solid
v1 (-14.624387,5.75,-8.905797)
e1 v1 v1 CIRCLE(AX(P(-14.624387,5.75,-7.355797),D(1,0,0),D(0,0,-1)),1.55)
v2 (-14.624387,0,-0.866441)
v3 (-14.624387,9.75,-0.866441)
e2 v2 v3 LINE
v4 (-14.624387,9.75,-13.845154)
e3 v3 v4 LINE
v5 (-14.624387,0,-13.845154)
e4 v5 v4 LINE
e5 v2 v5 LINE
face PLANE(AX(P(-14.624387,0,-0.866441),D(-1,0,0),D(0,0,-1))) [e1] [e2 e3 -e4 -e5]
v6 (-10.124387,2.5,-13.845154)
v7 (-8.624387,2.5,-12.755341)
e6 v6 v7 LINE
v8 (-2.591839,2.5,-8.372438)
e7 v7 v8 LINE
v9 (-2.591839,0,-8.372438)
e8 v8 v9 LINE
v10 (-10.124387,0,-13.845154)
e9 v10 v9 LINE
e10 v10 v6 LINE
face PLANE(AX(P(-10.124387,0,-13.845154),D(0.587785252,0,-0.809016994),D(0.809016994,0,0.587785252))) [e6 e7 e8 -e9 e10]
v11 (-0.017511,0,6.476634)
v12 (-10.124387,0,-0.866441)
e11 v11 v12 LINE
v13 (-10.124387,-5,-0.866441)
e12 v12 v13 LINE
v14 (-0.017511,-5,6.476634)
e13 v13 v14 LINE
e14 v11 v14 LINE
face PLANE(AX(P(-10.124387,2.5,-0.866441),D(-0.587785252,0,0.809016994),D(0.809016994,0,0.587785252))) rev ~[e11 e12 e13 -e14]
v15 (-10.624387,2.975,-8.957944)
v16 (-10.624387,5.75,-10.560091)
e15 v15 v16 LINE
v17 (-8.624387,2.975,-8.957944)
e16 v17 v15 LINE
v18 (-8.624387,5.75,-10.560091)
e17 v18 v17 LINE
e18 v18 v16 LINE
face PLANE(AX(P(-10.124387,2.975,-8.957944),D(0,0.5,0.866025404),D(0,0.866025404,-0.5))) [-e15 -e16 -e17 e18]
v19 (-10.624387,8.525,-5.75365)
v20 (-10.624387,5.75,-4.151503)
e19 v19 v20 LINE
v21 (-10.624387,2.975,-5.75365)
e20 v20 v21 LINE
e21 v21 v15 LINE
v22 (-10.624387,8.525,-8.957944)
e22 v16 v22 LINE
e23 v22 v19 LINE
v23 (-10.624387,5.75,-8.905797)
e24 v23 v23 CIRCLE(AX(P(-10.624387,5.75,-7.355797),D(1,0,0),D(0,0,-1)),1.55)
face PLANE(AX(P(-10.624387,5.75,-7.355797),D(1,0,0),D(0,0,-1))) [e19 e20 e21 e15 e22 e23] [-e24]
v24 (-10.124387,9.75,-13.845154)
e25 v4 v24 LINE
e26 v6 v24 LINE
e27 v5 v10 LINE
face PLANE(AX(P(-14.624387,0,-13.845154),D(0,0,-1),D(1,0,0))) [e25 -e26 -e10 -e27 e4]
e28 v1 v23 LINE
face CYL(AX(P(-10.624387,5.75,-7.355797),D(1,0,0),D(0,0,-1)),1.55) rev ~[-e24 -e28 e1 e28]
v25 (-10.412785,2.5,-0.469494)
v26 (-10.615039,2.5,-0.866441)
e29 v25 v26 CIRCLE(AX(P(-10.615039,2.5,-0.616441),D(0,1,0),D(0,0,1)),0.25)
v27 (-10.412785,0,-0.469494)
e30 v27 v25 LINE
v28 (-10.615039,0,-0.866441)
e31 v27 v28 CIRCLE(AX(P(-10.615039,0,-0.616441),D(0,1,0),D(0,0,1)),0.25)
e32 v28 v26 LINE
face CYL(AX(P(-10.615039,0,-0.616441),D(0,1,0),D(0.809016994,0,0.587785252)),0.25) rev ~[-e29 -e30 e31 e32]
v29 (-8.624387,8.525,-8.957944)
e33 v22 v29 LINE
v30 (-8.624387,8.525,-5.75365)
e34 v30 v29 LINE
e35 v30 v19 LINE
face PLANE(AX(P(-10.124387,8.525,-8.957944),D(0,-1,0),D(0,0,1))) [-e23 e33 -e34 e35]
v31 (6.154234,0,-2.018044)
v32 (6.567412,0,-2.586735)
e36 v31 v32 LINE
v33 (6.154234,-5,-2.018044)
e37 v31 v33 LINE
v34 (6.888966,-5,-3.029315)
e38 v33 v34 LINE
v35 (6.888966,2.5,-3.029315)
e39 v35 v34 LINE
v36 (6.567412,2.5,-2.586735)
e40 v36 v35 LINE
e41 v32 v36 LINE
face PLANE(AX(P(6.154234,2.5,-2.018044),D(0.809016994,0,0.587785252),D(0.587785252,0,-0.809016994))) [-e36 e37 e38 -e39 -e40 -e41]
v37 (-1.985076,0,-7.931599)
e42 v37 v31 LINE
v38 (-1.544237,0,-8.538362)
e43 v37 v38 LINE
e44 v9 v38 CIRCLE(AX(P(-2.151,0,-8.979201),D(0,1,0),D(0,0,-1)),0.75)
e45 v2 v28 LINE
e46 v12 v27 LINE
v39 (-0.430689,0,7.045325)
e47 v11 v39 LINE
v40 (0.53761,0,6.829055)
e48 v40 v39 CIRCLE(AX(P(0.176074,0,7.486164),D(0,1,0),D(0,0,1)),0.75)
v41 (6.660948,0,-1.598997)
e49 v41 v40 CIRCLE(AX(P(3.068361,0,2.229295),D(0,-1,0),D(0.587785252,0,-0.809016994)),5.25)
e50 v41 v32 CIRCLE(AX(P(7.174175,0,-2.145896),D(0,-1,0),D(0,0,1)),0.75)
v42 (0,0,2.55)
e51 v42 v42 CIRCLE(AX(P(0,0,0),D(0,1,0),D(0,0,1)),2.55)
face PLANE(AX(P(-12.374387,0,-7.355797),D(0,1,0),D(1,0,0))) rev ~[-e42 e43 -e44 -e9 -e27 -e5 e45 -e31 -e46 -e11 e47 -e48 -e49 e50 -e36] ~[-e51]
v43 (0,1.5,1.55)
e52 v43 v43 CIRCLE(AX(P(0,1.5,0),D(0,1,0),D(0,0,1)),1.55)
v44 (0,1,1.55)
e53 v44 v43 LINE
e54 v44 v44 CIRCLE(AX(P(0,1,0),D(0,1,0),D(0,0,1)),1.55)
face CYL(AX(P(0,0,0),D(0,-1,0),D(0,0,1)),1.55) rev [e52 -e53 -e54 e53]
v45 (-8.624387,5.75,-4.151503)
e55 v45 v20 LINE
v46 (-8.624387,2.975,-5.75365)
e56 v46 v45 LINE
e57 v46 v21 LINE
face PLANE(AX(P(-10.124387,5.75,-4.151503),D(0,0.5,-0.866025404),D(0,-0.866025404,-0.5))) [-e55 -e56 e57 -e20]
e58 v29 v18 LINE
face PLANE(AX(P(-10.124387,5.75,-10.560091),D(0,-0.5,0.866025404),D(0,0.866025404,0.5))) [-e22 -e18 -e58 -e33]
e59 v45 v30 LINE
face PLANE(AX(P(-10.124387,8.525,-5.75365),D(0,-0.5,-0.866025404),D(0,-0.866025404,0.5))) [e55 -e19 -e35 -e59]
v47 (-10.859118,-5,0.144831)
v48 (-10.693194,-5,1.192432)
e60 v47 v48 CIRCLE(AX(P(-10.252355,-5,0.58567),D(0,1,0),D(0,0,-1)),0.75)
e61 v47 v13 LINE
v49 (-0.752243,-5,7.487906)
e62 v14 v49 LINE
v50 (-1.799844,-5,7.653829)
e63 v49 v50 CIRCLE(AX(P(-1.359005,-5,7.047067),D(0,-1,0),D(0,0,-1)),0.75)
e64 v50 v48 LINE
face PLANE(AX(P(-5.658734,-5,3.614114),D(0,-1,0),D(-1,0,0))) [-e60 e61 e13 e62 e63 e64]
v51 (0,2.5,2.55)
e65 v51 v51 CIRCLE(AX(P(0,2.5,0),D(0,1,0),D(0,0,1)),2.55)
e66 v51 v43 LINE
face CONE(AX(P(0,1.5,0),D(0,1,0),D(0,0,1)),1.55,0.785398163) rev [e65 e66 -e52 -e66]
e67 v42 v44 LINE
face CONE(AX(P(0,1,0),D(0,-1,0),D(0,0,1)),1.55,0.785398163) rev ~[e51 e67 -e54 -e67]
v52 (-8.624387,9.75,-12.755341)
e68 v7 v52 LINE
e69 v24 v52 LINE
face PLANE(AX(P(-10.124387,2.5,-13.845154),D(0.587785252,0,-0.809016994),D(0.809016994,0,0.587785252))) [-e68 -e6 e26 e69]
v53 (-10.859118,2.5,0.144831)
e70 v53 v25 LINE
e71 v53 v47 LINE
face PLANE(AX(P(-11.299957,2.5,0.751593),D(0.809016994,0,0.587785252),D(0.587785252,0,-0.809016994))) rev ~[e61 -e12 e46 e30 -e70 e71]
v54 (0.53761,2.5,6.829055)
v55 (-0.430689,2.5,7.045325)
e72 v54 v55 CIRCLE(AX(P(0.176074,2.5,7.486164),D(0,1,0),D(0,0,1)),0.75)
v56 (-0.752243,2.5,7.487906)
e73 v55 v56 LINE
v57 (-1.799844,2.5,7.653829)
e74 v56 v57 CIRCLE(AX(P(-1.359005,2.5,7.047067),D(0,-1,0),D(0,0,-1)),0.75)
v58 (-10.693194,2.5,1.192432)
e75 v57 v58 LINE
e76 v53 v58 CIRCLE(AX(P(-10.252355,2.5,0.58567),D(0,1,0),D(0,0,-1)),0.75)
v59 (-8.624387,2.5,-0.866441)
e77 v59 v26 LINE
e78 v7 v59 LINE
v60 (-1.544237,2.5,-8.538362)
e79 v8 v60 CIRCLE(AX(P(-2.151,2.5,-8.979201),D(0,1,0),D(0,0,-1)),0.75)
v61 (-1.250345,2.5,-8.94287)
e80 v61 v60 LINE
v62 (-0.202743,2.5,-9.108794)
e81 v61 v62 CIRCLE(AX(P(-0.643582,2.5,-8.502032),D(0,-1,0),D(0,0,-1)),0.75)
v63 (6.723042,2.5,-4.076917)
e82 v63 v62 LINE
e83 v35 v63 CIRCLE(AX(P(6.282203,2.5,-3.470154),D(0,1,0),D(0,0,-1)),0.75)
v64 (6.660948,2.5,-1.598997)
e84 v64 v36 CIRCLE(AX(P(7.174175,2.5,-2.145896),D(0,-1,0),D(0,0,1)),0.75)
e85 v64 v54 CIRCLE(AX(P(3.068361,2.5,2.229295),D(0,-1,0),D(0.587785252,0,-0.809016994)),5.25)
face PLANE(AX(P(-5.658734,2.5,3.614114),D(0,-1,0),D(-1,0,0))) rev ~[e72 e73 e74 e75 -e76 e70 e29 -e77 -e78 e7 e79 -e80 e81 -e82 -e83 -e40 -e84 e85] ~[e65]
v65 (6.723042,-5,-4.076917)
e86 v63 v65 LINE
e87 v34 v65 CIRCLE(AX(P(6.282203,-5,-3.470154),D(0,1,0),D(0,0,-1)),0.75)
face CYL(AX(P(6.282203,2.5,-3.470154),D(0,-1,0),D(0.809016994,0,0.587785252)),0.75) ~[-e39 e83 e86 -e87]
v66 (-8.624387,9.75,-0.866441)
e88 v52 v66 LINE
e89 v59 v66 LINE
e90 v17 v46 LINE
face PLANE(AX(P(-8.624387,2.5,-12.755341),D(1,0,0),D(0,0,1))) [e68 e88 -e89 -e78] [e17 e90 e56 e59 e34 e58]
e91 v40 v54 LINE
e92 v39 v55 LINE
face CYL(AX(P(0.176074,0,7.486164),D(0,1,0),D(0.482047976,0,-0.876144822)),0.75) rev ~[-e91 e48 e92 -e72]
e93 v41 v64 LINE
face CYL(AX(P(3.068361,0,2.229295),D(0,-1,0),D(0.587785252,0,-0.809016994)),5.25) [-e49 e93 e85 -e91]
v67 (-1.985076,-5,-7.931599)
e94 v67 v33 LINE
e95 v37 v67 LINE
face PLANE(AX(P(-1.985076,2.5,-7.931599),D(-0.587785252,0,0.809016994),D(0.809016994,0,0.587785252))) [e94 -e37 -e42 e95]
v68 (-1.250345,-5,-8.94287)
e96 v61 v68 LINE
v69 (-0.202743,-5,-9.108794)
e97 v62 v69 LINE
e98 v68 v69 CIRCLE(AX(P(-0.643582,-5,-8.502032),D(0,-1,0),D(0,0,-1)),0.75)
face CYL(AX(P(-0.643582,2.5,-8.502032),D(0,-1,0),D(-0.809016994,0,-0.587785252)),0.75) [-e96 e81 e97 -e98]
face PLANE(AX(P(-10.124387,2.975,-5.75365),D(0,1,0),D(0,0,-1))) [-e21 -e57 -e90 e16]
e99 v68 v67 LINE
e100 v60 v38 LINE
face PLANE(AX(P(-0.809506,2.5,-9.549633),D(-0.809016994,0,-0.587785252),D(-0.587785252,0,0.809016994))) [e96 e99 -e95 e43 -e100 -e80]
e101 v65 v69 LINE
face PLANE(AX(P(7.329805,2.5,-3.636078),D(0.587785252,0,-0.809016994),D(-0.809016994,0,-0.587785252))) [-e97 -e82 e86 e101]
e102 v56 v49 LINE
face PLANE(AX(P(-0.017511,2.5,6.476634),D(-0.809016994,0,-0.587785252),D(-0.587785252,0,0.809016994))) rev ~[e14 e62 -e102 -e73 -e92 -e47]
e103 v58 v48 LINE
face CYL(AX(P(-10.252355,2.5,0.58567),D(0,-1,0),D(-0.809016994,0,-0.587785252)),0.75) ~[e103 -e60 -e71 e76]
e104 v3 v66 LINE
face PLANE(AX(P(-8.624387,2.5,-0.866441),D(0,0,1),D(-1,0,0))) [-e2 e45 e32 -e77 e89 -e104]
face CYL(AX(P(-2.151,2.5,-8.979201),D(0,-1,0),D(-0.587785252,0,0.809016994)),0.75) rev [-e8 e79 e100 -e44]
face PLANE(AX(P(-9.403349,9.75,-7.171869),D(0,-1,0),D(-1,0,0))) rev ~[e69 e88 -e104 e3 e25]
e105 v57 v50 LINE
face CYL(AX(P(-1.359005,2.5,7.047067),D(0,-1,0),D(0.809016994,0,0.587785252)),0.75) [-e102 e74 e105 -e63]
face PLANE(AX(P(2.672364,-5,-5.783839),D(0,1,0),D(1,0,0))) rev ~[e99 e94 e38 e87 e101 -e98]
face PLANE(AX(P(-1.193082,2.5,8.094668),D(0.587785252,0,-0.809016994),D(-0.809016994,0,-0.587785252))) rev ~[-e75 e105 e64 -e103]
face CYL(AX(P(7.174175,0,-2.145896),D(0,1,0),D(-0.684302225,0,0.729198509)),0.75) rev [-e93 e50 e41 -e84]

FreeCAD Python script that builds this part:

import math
import FreeCAD as App
import Part
import Sketcher
from FreeCAD import Vector
Q = App.Units.Quantity


def edges_at(feature, points):
    """Names of the edges that pass closest to the given points."""
    edges = feature.Shape.Edges
    near = lambda p: min(range(len(edges)), key=lambda i: edges[i].distToShape(Part.Vertex(*p))[0])
    return sorted({f"Edge{near(p) + 1}" for p in points})


def add_polygon(sketch, points):
    """Adds a closed chain of lines whose ends are joined by coincident constraints."""
    first, n = sketch.GeometryCount, len(points)
    for a, b in zip(points, points[1:] + points[:1]):
        sketch.addGeometry(Part.LineSegment(App.Vector(*a, 0), App.Vector(*b, 0)), False)
    for i in range(n):
        sketch.addConstraint(Sketcher.Constraint("Coincident", first + i, 2, first + (i + 1) % n, 1))

doc = App.newDocument("Part")
body = doc.addObject("PartDesign::Body", "Body")

sketch1 = body.newObject("Sketcher::SketchObject", "Sketch")
sketch1.AttachmentSupport = (doc.getObject("XZ_Plane"), [""])
sketch1.MapMode = "FlatFace"
sketch1.addGeometry([
    Part.LineSegment(Vector(6.2, -2, 0), Vector(-10.1, -13.8, 0)),
    Part.LineSegment(Vector(-10.1, -13.8, 0), Vector(-10.1, -0.9, 0)),
    Part.LineSegment(Vector(-10.1, -0.9, 0), Vector(0, 6.5, 0)),
    Part.ArcOfCircle(Part.Circle(Vector(3.1, 2.2, 0), Vector(0, 0, 1), 5.2), math.radians(-54), math.radians(126)),
    Part.Circle(Vector(0, 0, 0), Vector(0, 0, 1), 1.6),
], False)
sketch1.addConstraint([
    Sketcher.Constraint("Coincident", 0, 2, 1, 1),
    Sketcher.Constraint("Coincident", 1, 2, 2, 1),
    Sketcher.Constraint("Tangent", 2, 2, 3, 2),
    Sketcher.Constraint("Tangent", 3, 1, 0, 1),
    Sketcher.Constraint("Vertical", 1),
    Sketcher.Constraint("Coincident", 4, 3, -1, 1),
    Sketcher.Constraint("Parallel", 0, 2),
    Sketcher.Constraint("Diameter", 4, 3.1),
    Sketcher.Constraint("Angle", 0, Q("-144 deg")),
    Sketcher.Constraint("Radius", 3, 5.25),
    Sketcher.Constraint("Distance", 0, 20.121482),
    Sketcher.Constraint("DistanceX", -1, 1, 3, 3, 3.068361),
    Sketcher.Constraint("DistanceY", 1, 2, -1, 1, 0.866441),
])
pad1 = body.newObject("PartDesign::Pad", "Pad")
pad1.Profile = sketch1
pad1.Length = 2.5
pad1.Reversed = True

sketch2 = body.newObject("Sketcher::SketchObject", "Sketch001")
sketch2.AttachmentSupport = (doc.getObject("XZ_Plane"), [""])
sketch2.MapMode = "FlatFace"
sketch2.AttachmentOffset = App.Placement(Vector(0, 0, -2.5), App.Rotation())
add_polygon(sketch2, [(0, 6.5), (-10.1, -0.9), (-11.3, 0.8), (-1.2, 8.1)])
add_polygon(sketch2, [(7.3, -3.6), (-0.8, -9.5), (-2, -7.9), (6.2, -2)])
sketch2.addConstraint([
    Sketcher.Constraint("Perpendicular", 0, 1),
    Sketcher.Constraint("Perpendicular", 1, 2),
    Sketcher.Constraint("Perpendicular", 2, 3),
    Sketcher.Constraint("Perpendicular", 3, 4),
    Sketcher.Constraint("Perpendicular", 4, 5),
    Sketcher.Constraint("Perpendicular", 5, 6),
    Sketcher.Constraint("Perpendicular", 6, 7),
    Sketcher.Constraint("Equal", 3, 5),
    Sketcher.Constraint("Angle", 0, Q("-144 deg")),
    Sketcher.Constraint("Distance", 1, 2.0),
    Sketcher.Constraint("DistanceY", 5, 2, -1, 1, 7.931599),
    Sketcher.Constraint("DistanceY", 4, 2, 2, 2, 17.644302),
    Sketcher.Constraint("Distance", 4, 10.060741),
    Sketcher.Constraint("DistanceY", 0, 2, -1, 1, 0.866441),
    Sketcher.Constraint("DistanceX", 2, 2, -1, 1, 1.193082),
    Sketcher.Constraint("DistanceX", 0, 2, 4, 2, 9.314881),
])
pad2 = body.newObject("PartDesign::Pad", "Pad001")
pad2.Profile = sketch2
pad2.Length = 7.5

sketch3 = body.newObject("Sketcher::SketchObject", "Sketch002")
sketch3.AttachmentSupport = (doc.getObject("XZ_Plane"), [""])
sketch3.MapMode = "FlatFace"
add_polygon(sketch3, [(-14.6, -13.8), (-14.6, -0.9), (-10.1, -0.9), (-10.1, -13.8)])
sketch3.addConstraint([
    Sketcher.Constraint("Vertical", 0),
    Sketcher.Constraint("Horizontal", 1),
    Sketcher.Constraint("Vertical", 2),
    Sketcher.Constraint("Horizontal", 3),
    Sketcher.Constraint("DistanceX", 1, 1, 1, 2, 4.5),
    Sketcher.Constraint("DistanceY", 0, 1, 0, 2, 12.978714),
    Sketcher.Constraint("DistanceY", 0, 2, -1, 1, 0.866441),
    Sketcher.Constraint("DistanceX", 0, 2, -1, 1, 14.624387),
])
pad3 = body.newObject("PartDesign::Pad", "Pad002")
pad3.Profile = sketch3
pad3.Length = 9.75
pad3.Reversed = True
doc.recompute()

chamfer = body.newObject("PartDesign::Chamfer", "Chamfer")
chamfer.Base = (pad3, edges_at(pad3, [(0, 0, -1.55), (0, 2.5, -1.55)]))
chamfer.Size = 1
doc.recompute()

fillet = body.newObject("PartDesign::Fillet", "Fillet")
fillet.Base = (chamfer, edges_at(chamfer, [
    (-1.193, -1.25, 8.095),
    (-11.3, -1.25, 0.752),
    (-1.985, 1.25, -7.932),
    (-0.81, -1.25, -9.55),
    (7.33, -1.25, -3.636),
    (-0.018, 1.25, 6.477),
    (6.154, 1.25, -2.018),
]))
fillet.Radius = 0.75

sketch4 = body.newObject("Sketcher::SketchObject", "Sketch003")
sketch4.AttachmentSupport = (doc.getObject("YZ_Plane"), [""])
sketch4.MapMode = "FlatFace"
sketch4.AttachmentOffset = App.Placement(Vector(0, 0, -10.124387), App.Rotation())
add_polygon(sketch4, [(5.8, -10.6), (8.5, -9), (8.5, -5.8), (5.8, -4.2), (3, -5.8), (3, -9)])
sketch4.addConstraint([
    Sketcher.Constraint("Vertical", 1),
    Sketcher.Constraint("Vertical", 4),
    Sketcher.Constraint("Parallel", 0, 3),
    Sketcher.Constraint("Parallel", 2, 5),
    Sketcher.Constraint("Horizontal", 1, 2, 3, 2),
    Sketcher.Constraint("Horizontal", 0, 2, 4, 2),
    Sketcher.Constraint("Vertical", 2, 2, 5, 2),
    Sketcher.Constraint("Angle", 0, Q("30 deg")),
    Sketcher.Constraint("DistanceX", -1, 1, 2, 2, 5.75),
    Sketcher.Constraint("DistanceX", 3, 2, 1, 2, 5.55),
    Sketcher.Constraint("DistanceY", 1, 1, 1, 2, 3.204294),
    Sketcher.Constraint("DistanceY", 1, 2, -1, 1, 5.75365),
])
pocket1 = body.newObject("PartDesign::Pocket", "Pocket")
pocket1.Profile = sketch4
pocket1.Length = 2

sketch5 = body.newObject("Sketcher::SketchObject", "Sketch004")
sketch5.AttachmentSupport = (doc.getObject("YZ_Plane"), [""])
sketch5.MapMode = "FlatFace"
sketch5.AttachmentOffset = App.Placement(Vector(0, 0, -10.124387), App.Rotation())
sketch5.addGeometry(Part.Circle(Vector(5.8, -7.4, 0), Vector(0, 0, 1), 1.6), False)
sketch5.addConstraint([
    Sketcher.Constraint("Diameter", 0, 3.1),
    Sketcher.Constraint("DistanceX", -1, 1, 0, 3, 5.75),
    Sketcher.Constraint("DistanceY", 0, 3, -1, 1, 7.355797),
])
pocket2 = body.newObject("PartDesign::Pocket", "Pocket001")
pocket2.Profile = sketch5
pocket2.Length = 4.5

sketch6 = body.newObject("Sketcher::SketchObject", "Sketch005")
sketch6.AttachmentSupport = (doc.getObject("XZ_Plane"), [""])
sketch6.MapMode = "FlatFace"
sketch6.AttachmentOffset = App.Placement(Vector(0, 0, -2.5), App.Rotation())
add_polygon(sketch6, [(-8.6, -12.8), (-10.1, -13.8), (-10.1, -0.9), (-8.6, -0.9)])
sketch6.addConstraint([
    Sketcher.Constraint("Vertical", 1),
    Sketcher.Constraint("Horizontal", 2),
    Sketcher.Constraint("Vertical", 3),
    Sketcher.Constraint("Angle", 0, Q("-144 deg")),
    Sketcher.Constraint("DistanceX", 2, 1, 2, 2, 1.5),
    Sketcher.Constraint("DistanceY", 3, 2, 3, 1, 11.8889),
    Sketcher.Constraint("DistanceY", 1, 2, -1, 1, 0.866441),
    Sketcher.Constraint("DistanceX", 0, 2, -1, 1, 10.124387),
])
pad4 = body.newObject("PartDesign::Pad", "Pad003")
pad4.Profile = sketch6
pad4.Length = 7.25
pad4.Reversed = True

sketch7 = body.newObject("Sketcher::SketchObject", "Sketch006")
sketch7.AttachmentSupport = (doc.getObject("YZ_Plane"), [""])
sketch7.MapMode = "FlatFace"
sketch7.AttachmentOffset = App.Placement(Vector(0, 0, -10.124387), App.Rotation())
add_polygon(sketch7, [(5.8, -10.6), (8.5, -9), (8.5, -5.8), (5.8, -4.2), (3, -5.8), (3, -9)])
sketch7.addConstraint([
    Sketcher.Constraint("Vertical", 1),
    Sketcher.Constraint("Vertical", 4),
    Sketcher.Constraint("Parallel", 0, 3),
    Sketcher.Constraint("Parallel", 2, 5),
    Sketcher.Constraint("Horizontal", 1, 2, 3, 2),
    Sketcher.Constraint("Horizontal", 0, 2, 4, 2),
    Sketcher.Constraint("Vertical", 2, 2, 5, 2),
    Sketcher.Constraint("Angle", 0, Q("30 deg")),
    Sketcher.Constraint("DistanceX", -1, 1, 2, 2, 5.75),
    Sketcher.Constraint("DistanceX", 3, 2, 1, 2, 5.55),
    Sketcher.Constraint("DistanceY", 1, 1, 1, 2, 3.204294),
    Sketcher.Constraint("DistanceY", 1, 2, -1, 1, 5.75365),
])
pocket3 = body.newObject("PartDesign::Pocket", "Pocket002")
pocket3.Profile = sketch7
pocket3.Type = "ThroughAll"
pocket3.Reversed = True

sketch8 = body.newObject("Sketcher::SketchObject", "Sketch007")
sketch8.AttachmentSupport = (doc.getObject("YZ_Plane"), [""])
sketch8.MapMode = "FlatFace"
sketch8.AttachmentOffset = App.Placement(Vector(0, 0, -10.624387), App.Rotation())
add_polygon(sketch8, [(3, -9), (5.8, -10.6), (8.5, -9), (8.5, -5.8), (5.8, -4.2), (3, -5.8)])
sketch8.addGeometry(Part.Circle(Vector(5.8, -7.4, 0), Vector(0, 0, 1), 1.6), False)
sketch8.addConstraint([
    Sketcher.Constraint("Vertical", 2),
    Sketcher.Constraint("Vertical", 5),
    Sketcher.Constraint("Parallel", 0, 3),
    Sketcher.Constraint("Parallel", 1, 4),
    Sketcher.Constraint("Horizontal", 2, 2, 4, 2),
    Sketcher.Constraint("Horizontal", 1, 2, 5, 2),
    Sketcher.Constraint("Vertical", 6, 3, 0, 2),
    Sketcher.Constraint("Vertical", 0, 2, 3, 2),
    Sketcher.Constraint("Diameter", 6, 3.1),
    Sketcher.Constraint("Angle", 0, Q("-30 deg")),
    Sketcher.Constraint("DistanceX", -1, 1, 6, 3, 5.75),
    Sketcher.Constraint("DistanceX", 4, 2, 2, 2, 5.55),
    Sketcher.Constraint("DistanceY", 2, 1, 2, 2, 3.204294),
    Sketcher.Constraint("DistanceY", 0, 2, -1, 1, 10.560091),
    Sketcher.Constraint("DistanceY", 6, 3, -1, 1, 7.355797),
])
pad5 = body.newObject("PartDesign::Pad", "Pad004")
pad5.Profile = sketch8
pad5.Length = 1.5
pad5.Reversed = True
doc.recompute()

fillet2 = body.newObject("PartDesign::Fillet", "Fillet001")
fillet2.Base = (pad5, edges_at(pad5, [(-10.124, 1.25, -0.866)]))
fillet2.Radius = 0.25

doc.recompute()
